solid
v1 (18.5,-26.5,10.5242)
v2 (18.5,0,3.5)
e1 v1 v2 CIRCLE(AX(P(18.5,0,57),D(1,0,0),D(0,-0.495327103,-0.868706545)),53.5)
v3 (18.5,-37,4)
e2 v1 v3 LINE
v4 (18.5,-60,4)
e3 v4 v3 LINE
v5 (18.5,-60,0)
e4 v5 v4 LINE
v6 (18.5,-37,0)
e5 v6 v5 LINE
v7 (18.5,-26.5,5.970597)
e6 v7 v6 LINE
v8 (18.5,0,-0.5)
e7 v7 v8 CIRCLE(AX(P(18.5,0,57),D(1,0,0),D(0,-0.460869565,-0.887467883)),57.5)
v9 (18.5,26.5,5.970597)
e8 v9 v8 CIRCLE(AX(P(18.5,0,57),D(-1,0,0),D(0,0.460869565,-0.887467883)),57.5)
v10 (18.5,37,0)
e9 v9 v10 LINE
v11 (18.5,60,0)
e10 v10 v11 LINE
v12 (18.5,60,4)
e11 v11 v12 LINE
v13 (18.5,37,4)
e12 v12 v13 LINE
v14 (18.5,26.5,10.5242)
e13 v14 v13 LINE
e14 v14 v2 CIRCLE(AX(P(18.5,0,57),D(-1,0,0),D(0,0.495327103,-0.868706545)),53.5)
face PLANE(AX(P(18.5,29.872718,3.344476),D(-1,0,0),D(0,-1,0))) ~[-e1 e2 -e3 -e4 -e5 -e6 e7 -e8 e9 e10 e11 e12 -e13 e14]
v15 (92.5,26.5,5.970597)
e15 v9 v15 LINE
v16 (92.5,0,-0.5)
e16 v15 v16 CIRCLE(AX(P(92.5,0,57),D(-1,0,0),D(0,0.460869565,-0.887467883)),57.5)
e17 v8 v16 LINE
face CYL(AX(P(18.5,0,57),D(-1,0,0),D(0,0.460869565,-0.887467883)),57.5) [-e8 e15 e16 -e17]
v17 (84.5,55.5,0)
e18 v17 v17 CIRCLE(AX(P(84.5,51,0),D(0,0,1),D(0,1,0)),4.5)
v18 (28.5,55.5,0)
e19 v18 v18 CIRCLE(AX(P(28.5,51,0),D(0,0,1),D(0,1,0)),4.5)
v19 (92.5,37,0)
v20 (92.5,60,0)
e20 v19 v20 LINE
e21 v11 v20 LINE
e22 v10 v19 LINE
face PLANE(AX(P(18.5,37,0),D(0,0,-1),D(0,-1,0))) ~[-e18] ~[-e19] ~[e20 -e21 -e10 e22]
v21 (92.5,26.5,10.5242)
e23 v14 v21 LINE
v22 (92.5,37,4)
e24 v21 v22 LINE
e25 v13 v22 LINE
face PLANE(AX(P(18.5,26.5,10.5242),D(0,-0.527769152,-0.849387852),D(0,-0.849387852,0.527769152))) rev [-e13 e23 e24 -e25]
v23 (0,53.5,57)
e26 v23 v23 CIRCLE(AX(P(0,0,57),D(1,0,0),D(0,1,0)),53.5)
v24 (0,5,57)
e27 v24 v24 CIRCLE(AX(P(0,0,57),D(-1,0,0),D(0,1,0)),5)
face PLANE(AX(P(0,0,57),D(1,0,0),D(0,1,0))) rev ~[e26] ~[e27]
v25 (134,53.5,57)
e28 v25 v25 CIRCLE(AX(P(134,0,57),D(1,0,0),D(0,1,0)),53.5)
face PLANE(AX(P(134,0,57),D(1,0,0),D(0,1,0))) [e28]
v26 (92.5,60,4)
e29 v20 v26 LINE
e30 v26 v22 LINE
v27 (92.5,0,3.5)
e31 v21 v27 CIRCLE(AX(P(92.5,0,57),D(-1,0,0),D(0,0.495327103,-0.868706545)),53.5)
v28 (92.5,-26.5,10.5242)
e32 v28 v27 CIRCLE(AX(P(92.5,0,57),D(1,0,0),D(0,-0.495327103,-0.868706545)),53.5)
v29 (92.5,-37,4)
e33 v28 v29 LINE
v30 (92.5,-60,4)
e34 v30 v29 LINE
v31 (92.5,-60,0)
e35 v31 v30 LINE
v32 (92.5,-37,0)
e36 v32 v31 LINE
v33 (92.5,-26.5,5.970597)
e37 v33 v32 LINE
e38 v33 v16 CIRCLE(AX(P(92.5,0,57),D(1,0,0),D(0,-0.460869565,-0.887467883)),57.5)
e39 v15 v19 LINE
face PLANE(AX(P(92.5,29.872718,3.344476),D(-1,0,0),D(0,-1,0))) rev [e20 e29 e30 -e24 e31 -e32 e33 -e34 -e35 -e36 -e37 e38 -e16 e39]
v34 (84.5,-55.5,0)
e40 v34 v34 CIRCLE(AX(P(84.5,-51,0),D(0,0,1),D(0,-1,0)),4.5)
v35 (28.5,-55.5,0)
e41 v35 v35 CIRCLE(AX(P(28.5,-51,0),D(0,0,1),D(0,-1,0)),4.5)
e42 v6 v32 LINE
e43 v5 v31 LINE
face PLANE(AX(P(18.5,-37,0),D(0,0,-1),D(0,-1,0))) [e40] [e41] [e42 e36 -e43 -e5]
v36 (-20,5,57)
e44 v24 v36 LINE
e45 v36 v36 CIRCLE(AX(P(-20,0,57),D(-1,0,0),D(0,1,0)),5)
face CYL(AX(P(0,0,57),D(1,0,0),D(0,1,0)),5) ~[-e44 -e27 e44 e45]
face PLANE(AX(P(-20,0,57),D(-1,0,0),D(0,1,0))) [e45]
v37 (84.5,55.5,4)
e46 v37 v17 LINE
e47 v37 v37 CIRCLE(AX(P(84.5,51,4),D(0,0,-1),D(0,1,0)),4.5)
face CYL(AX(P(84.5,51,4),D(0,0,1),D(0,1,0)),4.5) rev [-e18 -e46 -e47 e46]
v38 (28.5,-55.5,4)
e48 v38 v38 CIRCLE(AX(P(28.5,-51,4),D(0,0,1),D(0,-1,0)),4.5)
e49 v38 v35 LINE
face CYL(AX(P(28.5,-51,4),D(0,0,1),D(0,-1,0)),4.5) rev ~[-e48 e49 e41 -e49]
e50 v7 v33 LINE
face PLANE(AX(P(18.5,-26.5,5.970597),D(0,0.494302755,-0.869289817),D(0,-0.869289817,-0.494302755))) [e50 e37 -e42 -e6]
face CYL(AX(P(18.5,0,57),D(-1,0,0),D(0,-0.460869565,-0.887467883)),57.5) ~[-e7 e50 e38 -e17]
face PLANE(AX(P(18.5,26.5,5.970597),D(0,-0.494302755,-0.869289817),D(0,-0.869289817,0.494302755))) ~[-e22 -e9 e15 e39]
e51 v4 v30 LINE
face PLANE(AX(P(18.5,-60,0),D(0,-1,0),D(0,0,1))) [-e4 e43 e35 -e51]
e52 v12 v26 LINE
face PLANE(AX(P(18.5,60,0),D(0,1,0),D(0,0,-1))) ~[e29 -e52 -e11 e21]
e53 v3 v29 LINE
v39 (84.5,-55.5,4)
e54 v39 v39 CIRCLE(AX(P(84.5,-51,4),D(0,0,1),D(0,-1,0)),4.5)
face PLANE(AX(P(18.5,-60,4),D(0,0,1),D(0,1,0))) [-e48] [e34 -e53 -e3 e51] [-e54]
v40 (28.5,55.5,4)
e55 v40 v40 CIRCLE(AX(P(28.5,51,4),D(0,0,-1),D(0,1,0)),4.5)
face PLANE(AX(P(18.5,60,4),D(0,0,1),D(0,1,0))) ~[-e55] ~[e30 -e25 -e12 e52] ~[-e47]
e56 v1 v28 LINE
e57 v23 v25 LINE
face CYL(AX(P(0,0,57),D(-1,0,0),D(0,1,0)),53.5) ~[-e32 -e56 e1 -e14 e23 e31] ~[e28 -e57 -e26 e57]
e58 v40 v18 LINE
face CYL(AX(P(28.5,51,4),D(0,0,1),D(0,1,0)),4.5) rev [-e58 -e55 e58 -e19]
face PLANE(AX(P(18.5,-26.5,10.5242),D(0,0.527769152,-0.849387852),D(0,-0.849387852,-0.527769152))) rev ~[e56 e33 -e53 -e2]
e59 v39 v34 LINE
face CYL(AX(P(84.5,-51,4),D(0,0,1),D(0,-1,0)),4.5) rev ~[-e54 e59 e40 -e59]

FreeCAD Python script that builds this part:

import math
import FreeCAD as App
import Part
import Sketcher

doc = App.newDocument("Part")
body = doc.addObject("PartDesign::Body", "Body")

sketch1 = body.newObject("Sketcher::SketchObject", "Sketch")
sketch1.AttachmentSupport = (doc.getObject("YZ_Plane"), [""])
sketch1.MapMode = "FlatFace"
sketch1.addGeometry(Part.Circle(App.Vector(0, 0, 0), App.Vector(0, 0, 1), 53.5), False)
sketch1.addConstraint(Sketcher.Constraint("Coincident", 0, 3, -1, 1))
sketch1.addConstraint(Sketcher.Constraint("Diameter", 0, 107.0))
pad1 = body.newObject("PartDesign::Pad", "Pad")
pad1.Profile = sketch1
pad1.Length = 134

sketch2 = body.newObject("Sketcher::SketchObject", "Sketch001")
sketch2.AttachmentSupport = (doc.getObject("YZ_Plane"), [""])
sketch2.MapMode = "FlatFace"
sketch2.addGeometry(Part.Circle(App.Vector(0, 0, 0), App.Vector(0, 0, 1), 5), False)
sketch2.addConstraint(Sketcher.Constraint("Coincident", 0, 3, -1, 1))
sketch2.addConstraint(Sketcher.Constraint("Diameter", 0, 10.0))
pad2 = body.newObject("PartDesign::Pad", "Pad001")
pad2.Profile = sketch2
pad2.Length = 20
pad2.Reversed = True
body2 = doc.addObject("PartDesign::Body", "Body001")

sketch3 = body2.newObject("Sketcher::SketchObject", "Sketch002")
sketch3.AttachmentSupport = (doc.getObject("YZ_Plane001"), [""])
sketch3.MapMode = "FlatFace"
sketch3.addGeometry(Part.ArcOfCircle(Part.Circle(App.Vector(0, 0, 0), App.Vector(0, 0, 1), 53.5), math.radians(-119.691322), math.radians(-90)), False)
sketch3.addGeometry(Part.LineSegment(App.Vector(-26.5, -46.4758, 0), App.Vector(-37, -53, 0)), False)
sketch3.addGeometry(Part.LineSegment(App.Vector(-37, -53, 0), App.Vector(-60, -53, 0)), False)
sketch3.addGeometry(Part.LineSegment(App.Vector(-60, -53, 0), App.Vector(-60, -57, 0)), False)
sketch3.addGeometry(Part.LineSegment(App.Vector(-60, -57, 0), App.Vector(-37, -57, 0)), False)
sketch3.addGeometry(Part.LineSegment(App.Vector(-37, -57, 0), App.Vector(-26.5, -51.029403, 0)), False)
sketch3.addGeometry(Part.ArcOfCircle(Part.Circle(App.Vector(0, 0, 0), App.Vector(0, 0, 1), 57.5), math.radians(-117.443233), math.radians(-90)), False)
sketch3.addGeometry(Part.LineSegment(App.Vector(0, -57.5, 0), App.Vector(0, -53.5, 0)), False)
sketch3.addConstraint(Sketcher.Constraint("Coincident", 0, 1, 1, 1))
sketch3.addConstraint(Sketcher.Constraint("Coincident", 1, 2, 2, 1))
sketch3.addConstraint(Sketcher.Constraint("Coincident", 2, 2, 3, 1))
sketch3.addConstraint(Sketcher.Constraint("Coincident", 3, 2, 4, 1))
sketch3.addConstraint(Sketcher.Constraint("Coincident", 4, 2, 5, 1))
sketch3.addConstraint(Sketcher.Constraint("Coincident", 5, 2, 6, 1))
sketch3.addConstraint(Sketcher.Constraint("Coincident", 6, 2, 7, 1))
sketch3.addConstraint(Sketcher.Constraint("Coincident", 7, 2, 0, 2))
sketch3.addConstraint(Sketcher.Constraint("Horizontal", 2))
sketch3.addConstraint(Sketcher.Constraint("Vertical", 3))
sketch3.addConstraint(Sketcher.Constraint("Horizontal", 4))
sketch3.addConstraint(Sketcher.Constraint("Vertical", 7))
sketch3.addConstraint(Sketcher.Constraint("Coincident", 0, 3, -1, 1))
sketch3.addConstraint(Sketcher.Constraint("Coincident", 6, 3, -1, 1))
sketch3.addConstraint(Sketcher.Constraint("PointOnObject", 6, 2, -2))
sketch3.addConstraint(Sketcher.Constraint("Vertical", 1, 2, 4, 2))
sketch3.addConstraint(Sketcher.Constraint("Vertical", 0, 1, 5, 2))
sketch3.addConstraint(Sketcher.Constraint("Equal", 3, 7))
sketch3.addConstraint(Sketcher.Constraint("Radius", 0, 53.5))
sketch3.addConstraint(Sketcher.Constraint("Radius", 6, 57.5))
sketch3.addConstraint(Sketcher.Constraint("DistanceX", 2, 2, 2, 1, 23.0))
sketch3.addConstraint(Sketcher.Constraint("DistanceX", 1, 2, -1, 1, 37.0))
sketch3.addConstraint(Sketcher.Constraint("DistanceY", 1, 2, -1, 1, 53.0))
sketch3.addConstraint(Sketcher.Constraint("DistanceX", 0, 1, -1, 1, 26.5))
pad3 = body2.newObject("PartDesign::Pad", "Pad002")
pad3.Profile = sketch3
pad3.Length = 74

sketch4 = body2.newObject("Sketcher::SketchObject", "Sketch003")
sketch4.AttachmentSupport = (doc.getObject("XY_Plane001"), [""])
sketch4.MapMode = "FlatFace"
sketch4.AttachmentOffset = App.Placement(App.Vector(0, 0, -53), App.Rotation())
sketch4.addGeometry(Part.Circle(App.Vector(66, -51, 0), App.Vector(0, 0, 1), 4.5), False)
sketch4.addGeometry(Part.Circle(App.Vector(10, -51, 0), App.Vector(0, 0, 1), 4.5), False)
sketch4.addConstraint(Sketcher.Constraint("Equal", 0, 1))
sketch4.addConstraint(Sketcher.Constraint("Horizontal", 0, 3, 1, 3))
sketch4.addConstraint(Sketcher.Constraint("Diameter", 0, 9.0))
sketch4.addConstraint(Sketcher.Constraint("DistanceX", -1, 1, 0, 3, 66.0))
sketch4.addConstraint(Sketcher.Constraint("DistanceY", 0, 3, -1, 1, 51.0))
sketch4.addConstraint(Sketcher.Constraint("DistanceX", -1, 1, 1, 3, 10.0))
pocket1 = body2.newObject("PartDesign::Pocket", "Pocket")
pocket1.Profile = sketch4
pocket1.Length = 5
doc.recompute()

mirrored = body2.newObject("PartDesign::Mirrored", "Mirrored")
mirrored.Originals = [pad3]
mirrored.MirrorPlane = (doc.getObject("XZ_Plane001"), [""])
body2.Tip = mirrored
doc.recompute()

mirrored2 = body2.newObject("PartDesign::Mirrored", "Mirrored001")
mirrored2.Originals = [pocket1]
mirrored2.MirrorPlane = (doc.getObject("XZ_Plane001"), [""])
body2.Tip = mirrored2
body3 = doc.addObject("PartDesign::Body", "Body002")
doc.recompute()

body2.Placement = App.Placement(App.Vector(18.5, 0, 0), App.Rotation(App.Vector(0, 0, 1), 0))
boolean = body3.newObject("PartDesign::Boolean", "Boolean")
boolean.Type = "Fuse"
boolean.addObjects([body2])
doc.recompute()

boolean2 = body3.newObject("PartDesign::Boolean", "Boolean001")
boolean2.Type = "Fuse"
boolean2.addObjects([body])
body4 = doc.addObject("PartDesign::Body", "Body003")
doc.recompute()

body3.Placement = App.Placement(App.Vector(0, 0, 57), App.Rotation(App.Vector(0, 0, 1), 0))
boolean3 = body4.newObject("PartDesign::Boolean", "Boolean002")
boolean3.Type = "Fuse"
boolean3.addObjects([body3])

doc.recompute()
